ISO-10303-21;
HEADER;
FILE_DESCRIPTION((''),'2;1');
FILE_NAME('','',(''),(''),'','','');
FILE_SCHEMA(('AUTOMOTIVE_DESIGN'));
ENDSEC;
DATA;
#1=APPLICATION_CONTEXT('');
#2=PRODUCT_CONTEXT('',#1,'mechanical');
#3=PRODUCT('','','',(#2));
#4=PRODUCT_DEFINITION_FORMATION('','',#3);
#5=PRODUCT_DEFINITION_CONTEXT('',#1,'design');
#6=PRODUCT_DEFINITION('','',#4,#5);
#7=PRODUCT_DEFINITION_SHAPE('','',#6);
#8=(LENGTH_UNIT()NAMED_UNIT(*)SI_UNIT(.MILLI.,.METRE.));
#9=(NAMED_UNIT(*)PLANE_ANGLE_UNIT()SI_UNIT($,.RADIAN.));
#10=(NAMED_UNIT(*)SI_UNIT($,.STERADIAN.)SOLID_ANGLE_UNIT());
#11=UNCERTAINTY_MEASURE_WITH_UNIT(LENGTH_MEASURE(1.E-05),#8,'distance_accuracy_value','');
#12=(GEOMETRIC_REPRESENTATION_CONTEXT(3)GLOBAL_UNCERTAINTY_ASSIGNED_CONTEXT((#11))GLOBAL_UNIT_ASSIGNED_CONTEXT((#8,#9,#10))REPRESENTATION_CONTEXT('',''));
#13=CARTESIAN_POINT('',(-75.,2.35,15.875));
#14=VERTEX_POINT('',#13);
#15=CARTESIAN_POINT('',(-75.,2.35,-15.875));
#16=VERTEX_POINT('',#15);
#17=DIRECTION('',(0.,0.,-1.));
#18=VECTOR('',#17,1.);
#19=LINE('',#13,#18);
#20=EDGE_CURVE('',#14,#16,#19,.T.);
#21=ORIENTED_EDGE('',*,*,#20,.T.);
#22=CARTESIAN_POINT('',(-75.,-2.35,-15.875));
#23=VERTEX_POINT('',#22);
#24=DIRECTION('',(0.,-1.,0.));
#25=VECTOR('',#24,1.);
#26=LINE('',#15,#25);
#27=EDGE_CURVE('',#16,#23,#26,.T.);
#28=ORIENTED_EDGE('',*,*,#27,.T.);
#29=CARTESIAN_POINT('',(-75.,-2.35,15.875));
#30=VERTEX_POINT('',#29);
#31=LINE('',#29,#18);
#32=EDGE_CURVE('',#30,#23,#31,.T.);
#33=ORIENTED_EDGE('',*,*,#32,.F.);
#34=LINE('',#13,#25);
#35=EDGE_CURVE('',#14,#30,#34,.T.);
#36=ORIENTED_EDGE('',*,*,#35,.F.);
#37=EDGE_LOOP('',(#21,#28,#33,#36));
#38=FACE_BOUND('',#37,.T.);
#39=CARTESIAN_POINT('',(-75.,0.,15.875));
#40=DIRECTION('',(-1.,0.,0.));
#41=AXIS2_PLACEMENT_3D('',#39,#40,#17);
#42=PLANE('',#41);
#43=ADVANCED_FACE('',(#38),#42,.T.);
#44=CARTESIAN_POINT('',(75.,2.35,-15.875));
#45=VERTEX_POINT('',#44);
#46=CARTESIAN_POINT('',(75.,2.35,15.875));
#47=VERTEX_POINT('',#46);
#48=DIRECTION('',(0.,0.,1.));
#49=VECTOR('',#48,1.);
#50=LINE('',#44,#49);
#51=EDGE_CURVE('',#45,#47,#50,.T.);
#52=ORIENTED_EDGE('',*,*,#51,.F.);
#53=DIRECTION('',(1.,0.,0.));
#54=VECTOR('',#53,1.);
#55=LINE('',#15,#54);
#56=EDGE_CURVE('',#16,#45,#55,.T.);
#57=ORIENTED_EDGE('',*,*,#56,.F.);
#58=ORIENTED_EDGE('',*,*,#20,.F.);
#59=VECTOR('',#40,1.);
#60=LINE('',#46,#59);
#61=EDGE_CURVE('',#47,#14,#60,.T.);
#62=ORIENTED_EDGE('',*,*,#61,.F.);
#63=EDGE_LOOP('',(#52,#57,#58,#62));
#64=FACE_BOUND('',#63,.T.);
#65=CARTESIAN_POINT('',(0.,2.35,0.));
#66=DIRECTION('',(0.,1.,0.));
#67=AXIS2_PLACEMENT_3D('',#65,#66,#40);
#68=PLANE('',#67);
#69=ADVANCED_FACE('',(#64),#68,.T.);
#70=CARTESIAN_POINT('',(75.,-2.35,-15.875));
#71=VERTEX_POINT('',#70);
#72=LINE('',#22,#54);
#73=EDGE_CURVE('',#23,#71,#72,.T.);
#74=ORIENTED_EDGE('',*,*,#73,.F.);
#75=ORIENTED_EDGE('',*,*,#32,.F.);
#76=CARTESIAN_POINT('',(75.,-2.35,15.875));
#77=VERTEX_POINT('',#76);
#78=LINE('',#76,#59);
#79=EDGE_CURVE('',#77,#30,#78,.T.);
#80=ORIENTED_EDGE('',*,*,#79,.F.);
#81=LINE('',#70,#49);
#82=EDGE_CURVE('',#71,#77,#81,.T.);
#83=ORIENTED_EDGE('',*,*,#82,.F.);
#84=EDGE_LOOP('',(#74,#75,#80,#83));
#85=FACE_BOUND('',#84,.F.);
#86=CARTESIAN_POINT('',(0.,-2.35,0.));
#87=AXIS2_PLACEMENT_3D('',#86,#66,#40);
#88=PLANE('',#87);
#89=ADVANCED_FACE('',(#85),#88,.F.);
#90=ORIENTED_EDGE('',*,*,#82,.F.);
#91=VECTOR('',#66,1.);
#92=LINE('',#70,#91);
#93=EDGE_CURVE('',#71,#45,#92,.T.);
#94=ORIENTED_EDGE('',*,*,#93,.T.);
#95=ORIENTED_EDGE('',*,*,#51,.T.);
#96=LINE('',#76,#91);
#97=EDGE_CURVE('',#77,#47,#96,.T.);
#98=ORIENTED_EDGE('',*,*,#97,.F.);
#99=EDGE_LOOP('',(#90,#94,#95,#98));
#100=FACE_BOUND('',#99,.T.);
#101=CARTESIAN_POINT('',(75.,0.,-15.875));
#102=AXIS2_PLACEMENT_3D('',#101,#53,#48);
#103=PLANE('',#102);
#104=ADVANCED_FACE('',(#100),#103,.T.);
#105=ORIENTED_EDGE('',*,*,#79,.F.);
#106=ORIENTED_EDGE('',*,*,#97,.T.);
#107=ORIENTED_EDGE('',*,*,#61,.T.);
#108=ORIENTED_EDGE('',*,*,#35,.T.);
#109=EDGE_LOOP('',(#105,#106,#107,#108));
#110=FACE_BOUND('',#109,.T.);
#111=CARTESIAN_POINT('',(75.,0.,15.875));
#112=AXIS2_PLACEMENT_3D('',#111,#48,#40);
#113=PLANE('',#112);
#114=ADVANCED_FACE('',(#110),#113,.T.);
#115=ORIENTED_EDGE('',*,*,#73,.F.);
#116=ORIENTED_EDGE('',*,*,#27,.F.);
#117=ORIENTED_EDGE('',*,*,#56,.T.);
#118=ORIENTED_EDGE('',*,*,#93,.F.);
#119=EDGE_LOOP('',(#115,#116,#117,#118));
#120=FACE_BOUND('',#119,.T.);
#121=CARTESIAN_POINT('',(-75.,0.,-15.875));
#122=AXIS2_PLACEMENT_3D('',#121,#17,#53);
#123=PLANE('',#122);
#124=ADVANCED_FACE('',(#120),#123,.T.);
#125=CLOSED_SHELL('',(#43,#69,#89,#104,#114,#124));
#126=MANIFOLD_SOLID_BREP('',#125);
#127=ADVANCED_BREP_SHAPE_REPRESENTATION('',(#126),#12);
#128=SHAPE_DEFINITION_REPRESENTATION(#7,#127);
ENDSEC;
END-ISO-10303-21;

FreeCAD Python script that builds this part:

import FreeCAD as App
import Part
import Sketcher
Q = App.Units.Quantity

doc = App.newDocument("Part")
params = doc.addObject("Spreadsheet::Sheet", "Params")
for row, (alias, value) in enumerate([
    ("sketch1_height", "1.25 in"),
    ("pad1_length", "4.7 mm"),
], start=1):
    params.set(f"A{row}", alias)
    params.set(f"B{row}", "=" + value)
    params.setAlias(f"B{row}", alias)

body = doc.addObject("PartDesign::Body", "Body")

# Sketch on XZ plane
sketch1 = doc.addObject("Sketcher::SketchObject", "Sketch")
body.addObject(sketch1)
sketch1.AttachmentSupport = (doc.XZ_Plane, [""])
sketch1.MapMode = "FlatFace"
sketch1.addGeometry([
    Part.LineSegment(App.Vector(-75, 15.875, 0), App.Vector(75, 15.875, 0)),
    Part.LineSegment(App.Vector(75, 15.875, 0), App.Vector(75, -15.875, 0)),
    Part.LineSegment(App.Vector(75, -15.875, 0), App.Vector(-75, -15.875, 0)),
    Part.LineSegment(App.Vector(-75, -15.875, 0), App.Vector(-75, 15.875, 0)),
], False)
sketch1.addConstraint([
    Sketcher.Constraint("Coincident", 0, 2, 1, 1),
    Sketcher.Constraint("Coincident", 1, 2, 2, 1),
    Sketcher.Constraint("Coincident", 2, 2, 3, 1),
    Sketcher.Constraint("Coincident", 3, 2, 0, 1),
    Sketcher.Constraint("Horizontal", 0),
    Sketcher.Constraint("Vertical", 1),
    Sketcher.Constraint("Horizontal", 2),
    Sketcher.Constraint("Vertical", 3),
    Sketcher.Constraint("Symmetric", 0, 2, 2, 2, -1, 1),
    Sketcher.Constraint("DistanceY", 1, 2, 1, 1, Q("1.25 in")),
    Sketcher.Constraint("DistanceX", 0, 1, 0, 2, Q("5.9055 in")),
])
sketch1.setExpression("Constraints[9]", "Params.sketch1_height")
pad1 = doc.addObject("PartDesign::Pad", "Pad")
body.addObject(pad1)
pad1.Profile = sketch1
pad1.setExpression("Length", "Params.pad1_length")
pad1.Midplane = True

doc.recompute()
